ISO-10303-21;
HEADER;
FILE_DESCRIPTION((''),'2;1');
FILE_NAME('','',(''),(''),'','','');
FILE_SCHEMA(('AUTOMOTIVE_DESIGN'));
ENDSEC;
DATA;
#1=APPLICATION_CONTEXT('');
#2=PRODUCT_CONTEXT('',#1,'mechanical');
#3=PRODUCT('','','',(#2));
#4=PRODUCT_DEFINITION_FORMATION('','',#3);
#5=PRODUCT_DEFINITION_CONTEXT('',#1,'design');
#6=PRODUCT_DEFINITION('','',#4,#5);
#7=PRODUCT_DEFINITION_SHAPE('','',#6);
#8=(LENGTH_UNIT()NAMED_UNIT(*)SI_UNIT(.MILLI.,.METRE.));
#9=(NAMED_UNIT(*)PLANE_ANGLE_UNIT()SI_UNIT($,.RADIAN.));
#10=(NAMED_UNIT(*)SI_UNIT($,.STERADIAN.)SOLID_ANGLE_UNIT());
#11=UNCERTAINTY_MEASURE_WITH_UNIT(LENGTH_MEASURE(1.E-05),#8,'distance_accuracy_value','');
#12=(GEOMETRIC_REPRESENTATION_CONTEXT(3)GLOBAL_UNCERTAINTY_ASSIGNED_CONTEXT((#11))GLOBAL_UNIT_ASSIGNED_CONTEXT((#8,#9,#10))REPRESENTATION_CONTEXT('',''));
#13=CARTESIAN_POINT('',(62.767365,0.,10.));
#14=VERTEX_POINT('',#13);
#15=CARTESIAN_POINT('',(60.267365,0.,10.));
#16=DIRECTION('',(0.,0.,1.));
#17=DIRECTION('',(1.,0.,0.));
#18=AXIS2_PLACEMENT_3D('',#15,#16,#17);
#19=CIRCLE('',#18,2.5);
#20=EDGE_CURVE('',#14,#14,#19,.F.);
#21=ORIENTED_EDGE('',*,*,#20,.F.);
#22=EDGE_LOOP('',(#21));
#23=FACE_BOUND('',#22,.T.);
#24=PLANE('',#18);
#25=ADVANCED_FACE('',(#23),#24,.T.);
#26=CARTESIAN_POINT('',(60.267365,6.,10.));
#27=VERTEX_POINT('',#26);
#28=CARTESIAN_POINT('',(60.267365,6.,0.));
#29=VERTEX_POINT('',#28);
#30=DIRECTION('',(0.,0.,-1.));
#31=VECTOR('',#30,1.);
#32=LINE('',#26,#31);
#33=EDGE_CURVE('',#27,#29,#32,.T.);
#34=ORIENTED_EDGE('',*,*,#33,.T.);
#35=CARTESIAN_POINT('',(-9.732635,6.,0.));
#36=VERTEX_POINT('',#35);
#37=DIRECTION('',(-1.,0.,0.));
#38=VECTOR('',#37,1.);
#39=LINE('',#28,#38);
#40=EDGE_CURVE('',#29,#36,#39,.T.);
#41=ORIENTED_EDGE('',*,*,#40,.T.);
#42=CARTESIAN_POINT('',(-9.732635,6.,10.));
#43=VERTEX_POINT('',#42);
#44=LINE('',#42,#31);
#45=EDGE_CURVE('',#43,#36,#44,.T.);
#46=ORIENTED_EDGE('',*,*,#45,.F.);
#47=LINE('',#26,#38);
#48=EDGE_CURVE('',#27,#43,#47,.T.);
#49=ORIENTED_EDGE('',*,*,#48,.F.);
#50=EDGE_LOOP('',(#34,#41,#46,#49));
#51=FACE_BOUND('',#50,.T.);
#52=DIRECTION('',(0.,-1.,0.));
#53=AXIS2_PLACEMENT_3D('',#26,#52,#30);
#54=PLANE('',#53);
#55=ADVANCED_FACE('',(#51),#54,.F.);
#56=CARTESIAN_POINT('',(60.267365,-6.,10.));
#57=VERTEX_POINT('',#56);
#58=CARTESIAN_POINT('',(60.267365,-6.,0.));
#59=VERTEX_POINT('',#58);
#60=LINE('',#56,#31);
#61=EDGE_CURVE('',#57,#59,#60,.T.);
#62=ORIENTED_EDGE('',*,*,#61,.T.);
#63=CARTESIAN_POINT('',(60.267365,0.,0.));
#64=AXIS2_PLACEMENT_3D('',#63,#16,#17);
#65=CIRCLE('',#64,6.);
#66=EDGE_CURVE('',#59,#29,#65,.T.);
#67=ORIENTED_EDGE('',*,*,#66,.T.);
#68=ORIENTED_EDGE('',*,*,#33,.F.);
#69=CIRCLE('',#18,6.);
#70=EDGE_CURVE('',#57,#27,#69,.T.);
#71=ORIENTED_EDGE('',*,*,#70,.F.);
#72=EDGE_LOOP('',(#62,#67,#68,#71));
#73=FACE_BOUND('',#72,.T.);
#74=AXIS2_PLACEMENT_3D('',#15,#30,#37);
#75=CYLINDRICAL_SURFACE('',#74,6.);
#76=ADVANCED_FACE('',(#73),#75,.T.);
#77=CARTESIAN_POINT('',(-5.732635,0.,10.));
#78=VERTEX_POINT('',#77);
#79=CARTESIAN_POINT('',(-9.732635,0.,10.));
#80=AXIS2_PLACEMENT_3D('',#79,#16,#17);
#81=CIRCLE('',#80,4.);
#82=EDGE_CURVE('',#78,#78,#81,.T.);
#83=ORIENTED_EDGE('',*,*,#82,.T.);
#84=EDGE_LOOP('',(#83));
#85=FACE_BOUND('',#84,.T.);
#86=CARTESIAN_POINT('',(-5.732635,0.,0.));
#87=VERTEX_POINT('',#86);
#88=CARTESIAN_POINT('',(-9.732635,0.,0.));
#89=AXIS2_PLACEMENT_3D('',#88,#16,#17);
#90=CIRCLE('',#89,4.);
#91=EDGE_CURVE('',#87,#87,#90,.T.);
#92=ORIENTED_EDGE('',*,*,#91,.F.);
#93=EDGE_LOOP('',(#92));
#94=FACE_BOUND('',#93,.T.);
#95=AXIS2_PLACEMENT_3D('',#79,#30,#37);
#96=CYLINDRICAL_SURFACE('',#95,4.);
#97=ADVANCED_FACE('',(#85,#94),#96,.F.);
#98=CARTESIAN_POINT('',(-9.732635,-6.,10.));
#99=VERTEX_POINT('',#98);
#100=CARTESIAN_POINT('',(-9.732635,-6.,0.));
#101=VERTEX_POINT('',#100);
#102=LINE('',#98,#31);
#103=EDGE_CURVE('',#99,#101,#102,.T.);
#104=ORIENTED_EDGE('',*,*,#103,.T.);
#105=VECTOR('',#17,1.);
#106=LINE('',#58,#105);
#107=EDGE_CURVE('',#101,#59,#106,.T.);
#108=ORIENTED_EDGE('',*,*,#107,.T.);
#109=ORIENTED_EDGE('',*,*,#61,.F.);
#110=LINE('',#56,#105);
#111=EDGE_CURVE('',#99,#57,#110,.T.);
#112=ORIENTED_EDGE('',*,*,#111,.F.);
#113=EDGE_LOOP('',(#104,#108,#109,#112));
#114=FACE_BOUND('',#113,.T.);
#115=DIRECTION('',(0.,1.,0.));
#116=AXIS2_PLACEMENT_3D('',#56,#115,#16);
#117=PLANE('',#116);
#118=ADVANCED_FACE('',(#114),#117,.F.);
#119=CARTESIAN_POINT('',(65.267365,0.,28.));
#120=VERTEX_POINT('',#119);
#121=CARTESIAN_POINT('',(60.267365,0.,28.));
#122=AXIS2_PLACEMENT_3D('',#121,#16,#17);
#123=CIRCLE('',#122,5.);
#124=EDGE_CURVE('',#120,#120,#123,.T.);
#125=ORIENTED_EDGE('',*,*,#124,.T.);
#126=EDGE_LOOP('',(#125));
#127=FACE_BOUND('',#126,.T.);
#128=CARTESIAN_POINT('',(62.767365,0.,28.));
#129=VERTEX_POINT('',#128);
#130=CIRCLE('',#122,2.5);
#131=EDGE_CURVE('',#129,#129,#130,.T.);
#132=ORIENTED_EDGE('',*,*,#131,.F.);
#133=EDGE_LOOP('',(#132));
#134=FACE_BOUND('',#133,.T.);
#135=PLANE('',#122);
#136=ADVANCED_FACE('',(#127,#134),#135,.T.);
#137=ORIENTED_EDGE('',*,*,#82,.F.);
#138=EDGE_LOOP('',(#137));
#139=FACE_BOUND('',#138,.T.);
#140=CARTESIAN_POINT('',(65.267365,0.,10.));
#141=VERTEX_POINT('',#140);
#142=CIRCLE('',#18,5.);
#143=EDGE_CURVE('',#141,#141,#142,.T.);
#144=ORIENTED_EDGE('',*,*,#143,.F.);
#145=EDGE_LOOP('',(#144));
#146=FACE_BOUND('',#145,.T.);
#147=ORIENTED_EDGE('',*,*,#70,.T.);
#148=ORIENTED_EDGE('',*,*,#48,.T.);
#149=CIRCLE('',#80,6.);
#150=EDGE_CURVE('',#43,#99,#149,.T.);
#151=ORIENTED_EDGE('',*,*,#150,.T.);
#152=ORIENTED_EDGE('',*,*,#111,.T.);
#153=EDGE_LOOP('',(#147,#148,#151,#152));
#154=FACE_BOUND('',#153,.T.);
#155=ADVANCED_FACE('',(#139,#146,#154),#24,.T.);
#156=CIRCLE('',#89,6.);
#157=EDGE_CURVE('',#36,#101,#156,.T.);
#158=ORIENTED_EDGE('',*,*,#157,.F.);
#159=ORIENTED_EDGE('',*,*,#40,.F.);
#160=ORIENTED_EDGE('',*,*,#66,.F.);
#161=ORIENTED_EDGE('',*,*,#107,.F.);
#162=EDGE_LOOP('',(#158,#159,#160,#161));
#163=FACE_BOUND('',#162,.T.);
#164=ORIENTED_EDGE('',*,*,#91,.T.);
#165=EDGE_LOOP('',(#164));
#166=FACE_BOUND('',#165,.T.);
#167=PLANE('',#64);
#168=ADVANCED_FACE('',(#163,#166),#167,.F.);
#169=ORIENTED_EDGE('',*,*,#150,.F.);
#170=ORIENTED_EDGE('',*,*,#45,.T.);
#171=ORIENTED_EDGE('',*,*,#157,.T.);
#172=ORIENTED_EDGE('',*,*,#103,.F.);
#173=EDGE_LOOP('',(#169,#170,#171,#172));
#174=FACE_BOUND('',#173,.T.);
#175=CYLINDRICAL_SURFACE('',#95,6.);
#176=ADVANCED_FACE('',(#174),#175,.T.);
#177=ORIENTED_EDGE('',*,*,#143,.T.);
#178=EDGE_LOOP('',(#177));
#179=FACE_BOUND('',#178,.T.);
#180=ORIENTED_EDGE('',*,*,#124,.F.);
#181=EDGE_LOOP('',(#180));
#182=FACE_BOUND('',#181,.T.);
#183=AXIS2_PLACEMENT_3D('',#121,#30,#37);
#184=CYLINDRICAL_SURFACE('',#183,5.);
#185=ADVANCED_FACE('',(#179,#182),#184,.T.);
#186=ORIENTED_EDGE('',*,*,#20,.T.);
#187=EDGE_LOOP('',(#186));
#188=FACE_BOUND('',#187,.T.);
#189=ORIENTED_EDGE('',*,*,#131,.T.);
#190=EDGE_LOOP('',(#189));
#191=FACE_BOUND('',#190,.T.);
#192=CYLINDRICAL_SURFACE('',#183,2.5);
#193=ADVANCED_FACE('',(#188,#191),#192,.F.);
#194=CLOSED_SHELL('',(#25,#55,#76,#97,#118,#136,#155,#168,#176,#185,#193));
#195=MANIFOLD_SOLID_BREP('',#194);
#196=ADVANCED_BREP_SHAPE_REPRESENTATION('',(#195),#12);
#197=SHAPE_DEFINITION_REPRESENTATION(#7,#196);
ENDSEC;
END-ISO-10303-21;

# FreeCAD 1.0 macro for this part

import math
import FreeCAD as App
import Part
import Sketcher

doc = App.newDocument("Part")
body = doc.addObject("PartDesign::Body", "Body")

# Sketch on XY plane
sketch1 = doc.addObject("Sketcher::SketchObject", "Sketch")
body.addObject(sketch1)
sketch1.AttachmentSupport = (doc.XY_Plane, [""])
sketch1.MapMode = "FlatFace"
sketch1.addGeometry([
    Part.LineSegment(App.Vector(60.267365, 6, 0), App.Vector(-9.732635, 6, 0)),  # 0
    Part.ArcOfCircle(Part.Circle(App.Vector(-9.732635, 0, 0), App.Vector(0, 0, 1), 6), math.radians(90), math.radians(270)),  # 1
    Part.LineSegment(App.Vector(-9.732635, -6, 0), App.Vector(60.267365, -6, 0)),  # 2
    Part.ArcOfCircle(Part.Circle(App.Vector(60.267365, 0, 0), App.Vector(0, 0, 1), 6), math.radians(-90), math.radians(90)),  # 3
    Part.Circle(App.Vector(-9.732635, 0, 0), App.Vector(0, 0, 1), 4),  # 4
], False)
sketch1.addConstraint([
    Sketcher.Constraint("Tangent", 0, 2, 1, 1),
    Sketcher.Constraint("Tangent", 1, 2, 2, 1),
    Sketcher.Constraint("Tangent", 2, 2, 3, 1),
    Sketcher.Constraint("Tangent", 3, 2, 0, 1),
    Sketcher.Constraint("Horizontal", 0),
    Sketcher.Constraint("Horizontal", 2),
    Sketcher.Constraint("Coincident", 4, 3, 1, 3),
    Sketcher.Constraint("PointOnObject", 1, 3, -1),
    Sketcher.Constraint("Diameter", 4, 8.0),
    Sketcher.Constraint("Radius", 1, 6.0),
    Sketcher.Constraint("DistanceX", 0, 2, 0, 1, 70.0),
    Sketcher.Constraint("DistanceX", 1, 3, -1, 1, 9.732635),
])
pad1 = doc.addObject("PartDesign::Pad", "Pad")
body.addObject(pad1)
pad1.Profile = sketch1
pad1.Length = 10

# Sketch on XY plane
sketch2 = doc.addObject("Sketcher::SketchObject", "Sketch001")
body.addObject(sketch2)
sketch2.AttachmentSupport = (doc.XY_Plane, [""])
sketch2.MapMode = "FlatFace"
sketch2.AttachmentOffset = App.Placement(App.Vector(0, 0, 10), App.Rotation())
sketch2.addGeometry([
    Part.Circle(App.Vector(60.267365, 0, 0), App.Vector(0, 0, 1), 5),
    Part.Circle(App.Vector(60.267365, 0, 0), App.Vector(0, 0, 1), 2.5),
], False)
sketch2.addConstraint([
    Sketcher.Constraint("Coincident", 1, 3, 0, 3),
    Sketcher.Constraint("PointOnObject", 0, 3, -1),
    Sketcher.Constraint("Diameter", 0, 10.0),
    Sketcher.Constraint("Diameter", 1, 5.0),
    Sketcher.Constraint("DistanceX", -1, 1, 0, 3, 60.267365),
])
pad2 = doc.addObject("PartDesign::Pad", "Pad001")
body.addObject(pad2)
pad2.Profile = sketch2
pad2.Length = 18

doc.recompute()
